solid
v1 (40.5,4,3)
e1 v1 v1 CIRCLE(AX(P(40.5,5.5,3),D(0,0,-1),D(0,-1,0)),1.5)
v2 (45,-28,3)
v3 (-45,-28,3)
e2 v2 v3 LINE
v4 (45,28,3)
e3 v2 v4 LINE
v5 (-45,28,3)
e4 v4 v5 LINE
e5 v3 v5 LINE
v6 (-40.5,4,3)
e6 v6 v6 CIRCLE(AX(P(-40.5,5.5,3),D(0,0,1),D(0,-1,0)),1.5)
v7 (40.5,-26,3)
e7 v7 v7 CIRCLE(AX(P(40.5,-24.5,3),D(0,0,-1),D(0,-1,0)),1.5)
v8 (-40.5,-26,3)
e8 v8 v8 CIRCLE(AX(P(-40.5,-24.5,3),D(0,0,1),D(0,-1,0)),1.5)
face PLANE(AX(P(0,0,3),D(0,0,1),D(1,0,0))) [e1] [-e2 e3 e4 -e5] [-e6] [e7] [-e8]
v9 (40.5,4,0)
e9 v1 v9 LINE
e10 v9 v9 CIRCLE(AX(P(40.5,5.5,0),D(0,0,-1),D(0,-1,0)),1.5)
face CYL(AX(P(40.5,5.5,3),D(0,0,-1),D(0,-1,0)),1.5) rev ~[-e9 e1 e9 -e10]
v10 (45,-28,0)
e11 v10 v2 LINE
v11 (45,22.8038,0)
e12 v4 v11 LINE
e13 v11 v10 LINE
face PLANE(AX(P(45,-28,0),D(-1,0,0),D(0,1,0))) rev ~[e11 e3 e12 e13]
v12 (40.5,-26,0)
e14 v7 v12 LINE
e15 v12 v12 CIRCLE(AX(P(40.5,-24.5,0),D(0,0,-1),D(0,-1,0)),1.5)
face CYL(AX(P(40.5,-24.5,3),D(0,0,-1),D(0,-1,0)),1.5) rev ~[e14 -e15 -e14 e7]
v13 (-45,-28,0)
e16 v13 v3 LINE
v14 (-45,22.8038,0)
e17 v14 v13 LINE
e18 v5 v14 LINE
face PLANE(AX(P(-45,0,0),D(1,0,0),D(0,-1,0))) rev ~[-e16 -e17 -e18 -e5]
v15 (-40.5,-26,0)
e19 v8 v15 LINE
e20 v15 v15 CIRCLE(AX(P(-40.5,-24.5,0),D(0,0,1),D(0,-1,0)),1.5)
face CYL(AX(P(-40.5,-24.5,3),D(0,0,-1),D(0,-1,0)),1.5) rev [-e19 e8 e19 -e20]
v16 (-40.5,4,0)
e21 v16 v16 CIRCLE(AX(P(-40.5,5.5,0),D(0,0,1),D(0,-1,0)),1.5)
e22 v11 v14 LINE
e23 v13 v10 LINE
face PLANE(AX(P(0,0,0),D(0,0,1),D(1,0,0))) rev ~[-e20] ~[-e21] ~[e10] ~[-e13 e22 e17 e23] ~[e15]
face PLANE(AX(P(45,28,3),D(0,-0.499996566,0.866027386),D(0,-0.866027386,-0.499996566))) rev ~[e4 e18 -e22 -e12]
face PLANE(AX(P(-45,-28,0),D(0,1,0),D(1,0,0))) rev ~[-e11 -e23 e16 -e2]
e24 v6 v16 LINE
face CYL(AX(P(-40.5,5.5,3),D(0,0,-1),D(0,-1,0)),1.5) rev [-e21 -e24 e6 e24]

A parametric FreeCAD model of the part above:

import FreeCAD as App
import Part
import Sketcher
Q = App.Units.Quantity


def add_polygon(sketch, points):
    """Adds a closed chain of lines whose ends are joined by coincident constraints."""
    first, n = sketch.GeometryCount, len(points)
    for a, b in zip(points, points[1:] + points[:1]):
        sketch.addGeometry(Part.LineSegment(App.Vector(*a, 0), App.Vector(*b, 0)), False)
    for i in range(n):
        sketch.addConstraint(Sketcher.Constraint("Coincident", first + i, 2, first + (i + 1) % n, 1))

doc = App.newDocument("Part")
body = doc.addObject("PartDesign::Body", "Body")

sketch1 = doc.addObject("Sketcher::SketchObject", "Sketch")
body.addObject(sketch1)
sketch1.AttachmentSupport = (doc.XY_Plane, [""])
sketch1.MapMode = "FlatFace"
add_polygon(sketch1, [(-45, -28), (45, -28), (45, 28), (-45, 28)])
sketch1.addConstraint(Sketcher.Constraint("Horizontal", 0))
sketch1.addConstraint(Sketcher.Constraint("Vertical", 1))
sketch1.addConstraint(Sketcher.Constraint("Horizontal", 2))
sketch1.addConstraint(Sketcher.Constraint("Vertical", 3))
sketch1.addConstraint(Sketcher.Constraint("Symmetric", 0, 2, 2, 2, -1, 1))
sketch1.addConstraint(Sketcher.Constraint("DistanceX", 0, 1, 0, 2, 90.0))
sketch1.addConstraint(Sketcher.Constraint("DistanceY", 1, 1, 1, 2, 56.0))
pad1 = doc.addObject("PartDesign::Pad", "Pad")
body.addObject(pad1)
pad1.Profile = sketch1
pad1.Length = 3

sketch2 = doc.addObject("Sketcher::SketchObject", "Sketch001")
body.addObject(sketch2)
sketch2.AttachmentSupport = (doc.YZ_Plane, [""])
sketch2.MapMode = "FlatFace"
sketch2.AttachmentOffset = App.Placement(App.Vector(0, 0, 45), App.Rotation())
add_polygon(sketch2, [(28, 0), (28, 3), (22.8038, 0)])
sketch2.addConstraint(Sketcher.Constraint("Vertical", 0))
sketch2.addConstraint(Sketcher.Constraint("Horizontal", 2))
sketch2.addConstraint(Sketcher.Constraint("PointOnObject", 1, 2, -1))
sketch2.addConstraint(Sketcher.Constraint("DistanceY", 0, 1, 0, 2, 3.0))
sketch2.addConstraint(Sketcher.Constraint("Angle", 1, Q("-150.0002 deg")))
sketch2.addConstraint(Sketcher.Constraint("DistanceX", -1, 1, 0, 2, 28.0))
pocket1 = doc.addObject("PartDesign::Pocket", "Pocket")
body.addObject(pocket1)
pocket1.Profile = sketch2
pocket1.Length = 90

sketch3 = doc.addObject("Sketcher::SketchObject", "Sketch002")
body.addObject(sketch3)
sketch3.AttachmentSupport = (doc.XY_Plane, [""])
sketch3.MapMode = "FlatFace"
sketch3.AttachmentOffset = App.Placement(App.Vector(0, 0, 3), App.Rotation())
sketch3.addGeometry(Part.Circle(App.Vector(40.5, 5.5, 0), App.Vector(0, 0, 1), 1.5), False)
sketch3.addGeometry(Part.Circle(App.Vector(40.5, -24.5, 0), App.Vector(0, 0, 1), 1.5), False)
sketch3.addConstraint(Sketcher.Constraint("Equal", 0, 1))
sketch3.addConstraint(Sketcher.Constraint("Vertical", 0, 3, 1, 3))
sketch3.addConstraint(Sketcher.Constraint("Diameter", 0, 3.0))
sketch3.addConstraint(Sketcher.Constraint("DistanceY", 1, 3, 0, 3, 30.0))
sketch3.addConstraint(Sketcher.Constraint("DistanceX", -1, 1, 0, 3, 40.5))
sketch3.addConstraint(Sketcher.Constraint("DistanceY", -1, 1, 0, 3, 5.5))
doc.recompute()
hole = doc.addObject("PartDesign::Hole", "Hole")
body.addObject(hole)
hole.Profile = sketch3
hole.ThreadType = "None"
hole.Diameter = 3
hole.DepthType = "Dimension"
hole.Depth = 3
hole.DrillPoint = "Flat"
doc.recompute()

mirrored = doc.addObject("PartDesign::Mirrored", "Mirrored")
body.addObject(mirrored)
mirrored.Originals = [hole]
mirrored.MirrorPlane = (doc.YZ_Plane, [""])
body.Tip = mirrored

doc.recompute()
